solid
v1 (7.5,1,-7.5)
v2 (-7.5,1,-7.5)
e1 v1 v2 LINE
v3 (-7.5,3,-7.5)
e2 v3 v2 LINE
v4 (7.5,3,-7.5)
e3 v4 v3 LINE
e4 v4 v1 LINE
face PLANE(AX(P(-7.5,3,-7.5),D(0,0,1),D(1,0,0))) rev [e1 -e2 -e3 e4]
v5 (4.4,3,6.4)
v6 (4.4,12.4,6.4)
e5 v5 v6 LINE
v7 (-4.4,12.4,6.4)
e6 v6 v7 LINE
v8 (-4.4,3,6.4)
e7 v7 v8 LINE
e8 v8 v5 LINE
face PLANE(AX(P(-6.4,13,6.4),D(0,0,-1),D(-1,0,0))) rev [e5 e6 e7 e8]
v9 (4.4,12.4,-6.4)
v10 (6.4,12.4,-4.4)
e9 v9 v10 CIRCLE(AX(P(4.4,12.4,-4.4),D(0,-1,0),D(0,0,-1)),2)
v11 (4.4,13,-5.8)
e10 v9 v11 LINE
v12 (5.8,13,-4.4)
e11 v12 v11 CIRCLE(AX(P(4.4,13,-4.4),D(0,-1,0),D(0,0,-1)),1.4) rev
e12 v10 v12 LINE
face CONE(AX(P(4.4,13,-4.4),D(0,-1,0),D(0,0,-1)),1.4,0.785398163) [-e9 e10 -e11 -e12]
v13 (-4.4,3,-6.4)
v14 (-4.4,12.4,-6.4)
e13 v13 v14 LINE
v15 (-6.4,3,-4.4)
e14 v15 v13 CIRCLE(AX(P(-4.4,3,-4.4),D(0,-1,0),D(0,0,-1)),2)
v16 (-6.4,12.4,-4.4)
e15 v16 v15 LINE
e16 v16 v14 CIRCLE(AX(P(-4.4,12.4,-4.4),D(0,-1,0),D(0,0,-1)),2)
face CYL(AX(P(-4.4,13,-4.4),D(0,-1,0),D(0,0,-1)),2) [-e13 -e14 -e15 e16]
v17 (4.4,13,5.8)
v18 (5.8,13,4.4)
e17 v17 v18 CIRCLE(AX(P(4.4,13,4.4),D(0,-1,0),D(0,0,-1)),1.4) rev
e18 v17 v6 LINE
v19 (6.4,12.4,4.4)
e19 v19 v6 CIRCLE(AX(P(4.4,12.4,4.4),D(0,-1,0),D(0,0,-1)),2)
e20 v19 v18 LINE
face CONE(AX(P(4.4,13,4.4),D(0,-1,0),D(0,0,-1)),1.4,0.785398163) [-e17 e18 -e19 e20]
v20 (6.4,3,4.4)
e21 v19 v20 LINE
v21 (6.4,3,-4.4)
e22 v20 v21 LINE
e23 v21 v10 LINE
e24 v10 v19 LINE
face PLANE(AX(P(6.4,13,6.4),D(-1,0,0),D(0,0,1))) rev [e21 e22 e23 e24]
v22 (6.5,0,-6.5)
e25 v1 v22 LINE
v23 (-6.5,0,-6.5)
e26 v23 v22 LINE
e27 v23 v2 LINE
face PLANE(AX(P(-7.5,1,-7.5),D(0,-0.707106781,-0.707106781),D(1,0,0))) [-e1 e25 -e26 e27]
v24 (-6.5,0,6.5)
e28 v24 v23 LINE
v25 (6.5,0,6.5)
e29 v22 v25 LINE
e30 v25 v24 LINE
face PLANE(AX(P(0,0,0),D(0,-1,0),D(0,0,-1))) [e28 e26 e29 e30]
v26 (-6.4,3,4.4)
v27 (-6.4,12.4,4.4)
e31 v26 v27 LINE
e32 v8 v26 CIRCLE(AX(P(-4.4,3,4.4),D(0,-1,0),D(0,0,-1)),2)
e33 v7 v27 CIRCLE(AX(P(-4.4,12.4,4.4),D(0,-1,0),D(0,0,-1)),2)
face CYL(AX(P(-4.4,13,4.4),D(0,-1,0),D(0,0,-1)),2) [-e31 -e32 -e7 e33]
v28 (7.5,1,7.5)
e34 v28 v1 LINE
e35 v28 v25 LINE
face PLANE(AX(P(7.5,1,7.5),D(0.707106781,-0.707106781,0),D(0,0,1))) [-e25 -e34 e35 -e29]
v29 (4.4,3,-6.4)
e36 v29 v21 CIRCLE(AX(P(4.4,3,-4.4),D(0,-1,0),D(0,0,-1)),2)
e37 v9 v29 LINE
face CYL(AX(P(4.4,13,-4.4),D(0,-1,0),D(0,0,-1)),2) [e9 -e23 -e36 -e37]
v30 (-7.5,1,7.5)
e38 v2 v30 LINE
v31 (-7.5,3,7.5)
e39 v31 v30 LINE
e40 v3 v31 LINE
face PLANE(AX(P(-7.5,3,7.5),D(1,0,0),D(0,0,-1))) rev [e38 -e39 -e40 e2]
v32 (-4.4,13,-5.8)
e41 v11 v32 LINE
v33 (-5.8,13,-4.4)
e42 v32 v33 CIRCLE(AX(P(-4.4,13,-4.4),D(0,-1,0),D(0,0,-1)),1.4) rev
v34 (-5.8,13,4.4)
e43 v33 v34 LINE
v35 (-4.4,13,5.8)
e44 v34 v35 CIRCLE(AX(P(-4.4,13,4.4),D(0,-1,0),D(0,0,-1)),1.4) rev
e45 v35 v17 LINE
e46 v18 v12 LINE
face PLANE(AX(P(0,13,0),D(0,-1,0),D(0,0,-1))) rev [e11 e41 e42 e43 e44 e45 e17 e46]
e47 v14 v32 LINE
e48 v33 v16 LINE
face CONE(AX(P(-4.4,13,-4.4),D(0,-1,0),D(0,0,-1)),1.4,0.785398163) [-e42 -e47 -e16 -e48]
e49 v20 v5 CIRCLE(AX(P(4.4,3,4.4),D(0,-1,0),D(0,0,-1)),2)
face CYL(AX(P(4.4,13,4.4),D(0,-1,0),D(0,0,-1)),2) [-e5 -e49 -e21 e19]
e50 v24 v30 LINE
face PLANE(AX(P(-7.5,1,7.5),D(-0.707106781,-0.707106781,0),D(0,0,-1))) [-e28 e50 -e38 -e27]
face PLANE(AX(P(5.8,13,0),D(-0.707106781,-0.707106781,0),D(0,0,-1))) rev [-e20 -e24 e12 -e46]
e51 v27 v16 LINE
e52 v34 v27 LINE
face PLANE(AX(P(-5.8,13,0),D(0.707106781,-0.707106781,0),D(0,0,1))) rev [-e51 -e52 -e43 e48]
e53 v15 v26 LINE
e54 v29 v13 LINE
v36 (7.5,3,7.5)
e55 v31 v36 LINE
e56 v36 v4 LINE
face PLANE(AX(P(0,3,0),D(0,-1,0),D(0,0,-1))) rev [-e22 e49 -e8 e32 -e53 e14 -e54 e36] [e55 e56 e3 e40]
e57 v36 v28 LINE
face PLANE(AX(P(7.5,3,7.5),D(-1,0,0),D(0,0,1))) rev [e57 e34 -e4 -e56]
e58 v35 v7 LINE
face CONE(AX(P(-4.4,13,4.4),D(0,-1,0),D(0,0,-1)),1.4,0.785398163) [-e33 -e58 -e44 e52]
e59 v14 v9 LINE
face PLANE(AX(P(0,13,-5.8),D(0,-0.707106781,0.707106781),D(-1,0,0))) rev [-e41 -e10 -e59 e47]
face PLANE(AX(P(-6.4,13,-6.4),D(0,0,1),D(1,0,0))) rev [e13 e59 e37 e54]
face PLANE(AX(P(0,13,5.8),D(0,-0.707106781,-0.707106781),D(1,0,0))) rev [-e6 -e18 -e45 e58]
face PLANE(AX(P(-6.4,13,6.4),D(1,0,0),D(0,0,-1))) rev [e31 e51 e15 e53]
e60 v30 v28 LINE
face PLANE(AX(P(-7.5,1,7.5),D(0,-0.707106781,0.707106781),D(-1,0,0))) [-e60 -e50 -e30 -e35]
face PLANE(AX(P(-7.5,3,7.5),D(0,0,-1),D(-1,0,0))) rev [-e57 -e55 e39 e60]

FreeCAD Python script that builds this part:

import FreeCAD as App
import Part
import Sketcher
Q = App.Units.Quantity


def edges_at(feature, points):
    """Names of the edges that pass closest to the given points."""
    edges = feature.Shape.Edges
    near = lambda p: min(range(len(edges)), key=lambda i: edges[i].distToShape(Part.Vertex(*p))[0])
    return sorted({f"Edge{near(p) + 1}" for p in points})


def add_polygon(sketch, points):
    """Adds a closed chain of lines whose ends are joined by coincident constraints."""
    first, n = sketch.GeometryCount, len(points)
    for a, b in zip(points, points[1:] + points[:1]):
        sketch.addGeometry(Part.LineSegment(App.Vector(*a, 0), App.Vector(*b, 0)), False)
    for i in range(n):
        sketch.addConstraint(Sketcher.Constraint("Coincident", first + i, 2, first + (i + 1) % n, 1))

doc = App.newDocument("Part")
body = doc.addObject("PartDesign::Body", "Body")

sketch1 = body.newObject("Sketcher::SketchObject", "Sketch")
sketch1.AttachmentSupport = (doc.getObject("XZ_Plane"), [""])
sketch1.MapMode = "FlatFace"
add_polygon(sketch1, [(-7.5, -7.5), (-7.5, 7.5), (7.5, 7.5), (7.5, -7.5)])
sketch1.addConstraint(Sketcher.Constraint("Vertical", 0))
sketch1.addConstraint(Sketcher.Constraint("Horizontal", 1))
sketch1.addConstraint(Sketcher.Constraint("Vertical", 2))
sketch1.addConstraint(Sketcher.Constraint("Horizontal", 3))
sketch1.addConstraint(Sketcher.Constraint("Symmetric", 0, 2, 2, 2, -1, 1))
sketch1.addConstraint(Sketcher.Constraint("Equal", 3, 0))
sketch1.addConstraint(Sketcher.Constraint("DistanceX", 1, 1, 1, 2, Q("15 mm")))
pad1 = body.newObject("PartDesign::Pad", "Pad")
pad1.Profile = sketch1
pad1.Length = 3
pad1.Reversed = True

sketch2 = body.newObject("Sketcher::SketchObject", "Sketch001")
sketch2.AttachmentSupport = (doc.getObject("XZ_Plane"), [""])
sketch2.MapMode = "FlatFace"
sketch2.AttachmentOffset = App.Placement(App.Vector(0, 0, -3), App.Rotation())
add_polygon(sketch2, [(-6.4, -6.4), (-6.4, 6.4), (6.4, 6.4), (6.4, -6.4)])
sketch2.addConstraint(Sketcher.Constraint("Vertical", 0))
sketch2.addConstraint(Sketcher.Constraint("Horizontal", 1))
sketch2.addConstraint(Sketcher.Constraint("Vertical", 2))
sketch2.addConstraint(Sketcher.Constraint("Horizontal", 3))
sketch2.addConstraint(Sketcher.Constraint("Symmetric", 0, 2, 2, 2, -1, 1))
sketch2.addConstraint(Sketcher.Constraint("Equal", 3, 0))
sketch2.addConstraint(Sketcher.Constraint("DistanceX", 1, 1, 1, 2, Q("12.8 mm")))
pad2 = body.newObject("PartDesign::Pad", "Pad001")
pad2.Profile = sketch2
pad2.Length = 10
pad2.Reversed = True
doc.recompute()

chamfer = body.newObject("PartDesign::Chamfer", "Chamfer")
chamfer.Base = (pad2, edges_at(pad2, [
    (0, 0, 7.5),
    (-7.5, 0, 0),
    (0, 0, -7.5),
    (7.5, 0, 0),
]))
chamfer.Size = 1
doc.recompute()

fillet = body.newObject("PartDesign::Fillet", "Fillet")
fillet.Base = (chamfer, edges_at(chamfer, [
    (6.4, 8, 6.4),
    (6.4, 8, -6.4),
    (-6.4, 8, -6.4),
    (-6.4, 8, 6.4),
]))
fillet.Radius = 2
doc.recompute()

chamfer2 = body.newObject("PartDesign::Chamfer", "Chamfer001")
chamfer2.Base = (fillet, edges_at(fillet, [
    (0, 13, -6.4),
    (6.4, 13, 0),
    (-6.4, 13, 0),
    (0, 13, 6.4),
    (5.814, 13, 5.814),
    (-5.814, 13, 5.814),
    (-5.814, 13, -5.814),
    (5.814, 13, -5.814),
]))
chamfer2.Size = 0.6

doc.recompute()
